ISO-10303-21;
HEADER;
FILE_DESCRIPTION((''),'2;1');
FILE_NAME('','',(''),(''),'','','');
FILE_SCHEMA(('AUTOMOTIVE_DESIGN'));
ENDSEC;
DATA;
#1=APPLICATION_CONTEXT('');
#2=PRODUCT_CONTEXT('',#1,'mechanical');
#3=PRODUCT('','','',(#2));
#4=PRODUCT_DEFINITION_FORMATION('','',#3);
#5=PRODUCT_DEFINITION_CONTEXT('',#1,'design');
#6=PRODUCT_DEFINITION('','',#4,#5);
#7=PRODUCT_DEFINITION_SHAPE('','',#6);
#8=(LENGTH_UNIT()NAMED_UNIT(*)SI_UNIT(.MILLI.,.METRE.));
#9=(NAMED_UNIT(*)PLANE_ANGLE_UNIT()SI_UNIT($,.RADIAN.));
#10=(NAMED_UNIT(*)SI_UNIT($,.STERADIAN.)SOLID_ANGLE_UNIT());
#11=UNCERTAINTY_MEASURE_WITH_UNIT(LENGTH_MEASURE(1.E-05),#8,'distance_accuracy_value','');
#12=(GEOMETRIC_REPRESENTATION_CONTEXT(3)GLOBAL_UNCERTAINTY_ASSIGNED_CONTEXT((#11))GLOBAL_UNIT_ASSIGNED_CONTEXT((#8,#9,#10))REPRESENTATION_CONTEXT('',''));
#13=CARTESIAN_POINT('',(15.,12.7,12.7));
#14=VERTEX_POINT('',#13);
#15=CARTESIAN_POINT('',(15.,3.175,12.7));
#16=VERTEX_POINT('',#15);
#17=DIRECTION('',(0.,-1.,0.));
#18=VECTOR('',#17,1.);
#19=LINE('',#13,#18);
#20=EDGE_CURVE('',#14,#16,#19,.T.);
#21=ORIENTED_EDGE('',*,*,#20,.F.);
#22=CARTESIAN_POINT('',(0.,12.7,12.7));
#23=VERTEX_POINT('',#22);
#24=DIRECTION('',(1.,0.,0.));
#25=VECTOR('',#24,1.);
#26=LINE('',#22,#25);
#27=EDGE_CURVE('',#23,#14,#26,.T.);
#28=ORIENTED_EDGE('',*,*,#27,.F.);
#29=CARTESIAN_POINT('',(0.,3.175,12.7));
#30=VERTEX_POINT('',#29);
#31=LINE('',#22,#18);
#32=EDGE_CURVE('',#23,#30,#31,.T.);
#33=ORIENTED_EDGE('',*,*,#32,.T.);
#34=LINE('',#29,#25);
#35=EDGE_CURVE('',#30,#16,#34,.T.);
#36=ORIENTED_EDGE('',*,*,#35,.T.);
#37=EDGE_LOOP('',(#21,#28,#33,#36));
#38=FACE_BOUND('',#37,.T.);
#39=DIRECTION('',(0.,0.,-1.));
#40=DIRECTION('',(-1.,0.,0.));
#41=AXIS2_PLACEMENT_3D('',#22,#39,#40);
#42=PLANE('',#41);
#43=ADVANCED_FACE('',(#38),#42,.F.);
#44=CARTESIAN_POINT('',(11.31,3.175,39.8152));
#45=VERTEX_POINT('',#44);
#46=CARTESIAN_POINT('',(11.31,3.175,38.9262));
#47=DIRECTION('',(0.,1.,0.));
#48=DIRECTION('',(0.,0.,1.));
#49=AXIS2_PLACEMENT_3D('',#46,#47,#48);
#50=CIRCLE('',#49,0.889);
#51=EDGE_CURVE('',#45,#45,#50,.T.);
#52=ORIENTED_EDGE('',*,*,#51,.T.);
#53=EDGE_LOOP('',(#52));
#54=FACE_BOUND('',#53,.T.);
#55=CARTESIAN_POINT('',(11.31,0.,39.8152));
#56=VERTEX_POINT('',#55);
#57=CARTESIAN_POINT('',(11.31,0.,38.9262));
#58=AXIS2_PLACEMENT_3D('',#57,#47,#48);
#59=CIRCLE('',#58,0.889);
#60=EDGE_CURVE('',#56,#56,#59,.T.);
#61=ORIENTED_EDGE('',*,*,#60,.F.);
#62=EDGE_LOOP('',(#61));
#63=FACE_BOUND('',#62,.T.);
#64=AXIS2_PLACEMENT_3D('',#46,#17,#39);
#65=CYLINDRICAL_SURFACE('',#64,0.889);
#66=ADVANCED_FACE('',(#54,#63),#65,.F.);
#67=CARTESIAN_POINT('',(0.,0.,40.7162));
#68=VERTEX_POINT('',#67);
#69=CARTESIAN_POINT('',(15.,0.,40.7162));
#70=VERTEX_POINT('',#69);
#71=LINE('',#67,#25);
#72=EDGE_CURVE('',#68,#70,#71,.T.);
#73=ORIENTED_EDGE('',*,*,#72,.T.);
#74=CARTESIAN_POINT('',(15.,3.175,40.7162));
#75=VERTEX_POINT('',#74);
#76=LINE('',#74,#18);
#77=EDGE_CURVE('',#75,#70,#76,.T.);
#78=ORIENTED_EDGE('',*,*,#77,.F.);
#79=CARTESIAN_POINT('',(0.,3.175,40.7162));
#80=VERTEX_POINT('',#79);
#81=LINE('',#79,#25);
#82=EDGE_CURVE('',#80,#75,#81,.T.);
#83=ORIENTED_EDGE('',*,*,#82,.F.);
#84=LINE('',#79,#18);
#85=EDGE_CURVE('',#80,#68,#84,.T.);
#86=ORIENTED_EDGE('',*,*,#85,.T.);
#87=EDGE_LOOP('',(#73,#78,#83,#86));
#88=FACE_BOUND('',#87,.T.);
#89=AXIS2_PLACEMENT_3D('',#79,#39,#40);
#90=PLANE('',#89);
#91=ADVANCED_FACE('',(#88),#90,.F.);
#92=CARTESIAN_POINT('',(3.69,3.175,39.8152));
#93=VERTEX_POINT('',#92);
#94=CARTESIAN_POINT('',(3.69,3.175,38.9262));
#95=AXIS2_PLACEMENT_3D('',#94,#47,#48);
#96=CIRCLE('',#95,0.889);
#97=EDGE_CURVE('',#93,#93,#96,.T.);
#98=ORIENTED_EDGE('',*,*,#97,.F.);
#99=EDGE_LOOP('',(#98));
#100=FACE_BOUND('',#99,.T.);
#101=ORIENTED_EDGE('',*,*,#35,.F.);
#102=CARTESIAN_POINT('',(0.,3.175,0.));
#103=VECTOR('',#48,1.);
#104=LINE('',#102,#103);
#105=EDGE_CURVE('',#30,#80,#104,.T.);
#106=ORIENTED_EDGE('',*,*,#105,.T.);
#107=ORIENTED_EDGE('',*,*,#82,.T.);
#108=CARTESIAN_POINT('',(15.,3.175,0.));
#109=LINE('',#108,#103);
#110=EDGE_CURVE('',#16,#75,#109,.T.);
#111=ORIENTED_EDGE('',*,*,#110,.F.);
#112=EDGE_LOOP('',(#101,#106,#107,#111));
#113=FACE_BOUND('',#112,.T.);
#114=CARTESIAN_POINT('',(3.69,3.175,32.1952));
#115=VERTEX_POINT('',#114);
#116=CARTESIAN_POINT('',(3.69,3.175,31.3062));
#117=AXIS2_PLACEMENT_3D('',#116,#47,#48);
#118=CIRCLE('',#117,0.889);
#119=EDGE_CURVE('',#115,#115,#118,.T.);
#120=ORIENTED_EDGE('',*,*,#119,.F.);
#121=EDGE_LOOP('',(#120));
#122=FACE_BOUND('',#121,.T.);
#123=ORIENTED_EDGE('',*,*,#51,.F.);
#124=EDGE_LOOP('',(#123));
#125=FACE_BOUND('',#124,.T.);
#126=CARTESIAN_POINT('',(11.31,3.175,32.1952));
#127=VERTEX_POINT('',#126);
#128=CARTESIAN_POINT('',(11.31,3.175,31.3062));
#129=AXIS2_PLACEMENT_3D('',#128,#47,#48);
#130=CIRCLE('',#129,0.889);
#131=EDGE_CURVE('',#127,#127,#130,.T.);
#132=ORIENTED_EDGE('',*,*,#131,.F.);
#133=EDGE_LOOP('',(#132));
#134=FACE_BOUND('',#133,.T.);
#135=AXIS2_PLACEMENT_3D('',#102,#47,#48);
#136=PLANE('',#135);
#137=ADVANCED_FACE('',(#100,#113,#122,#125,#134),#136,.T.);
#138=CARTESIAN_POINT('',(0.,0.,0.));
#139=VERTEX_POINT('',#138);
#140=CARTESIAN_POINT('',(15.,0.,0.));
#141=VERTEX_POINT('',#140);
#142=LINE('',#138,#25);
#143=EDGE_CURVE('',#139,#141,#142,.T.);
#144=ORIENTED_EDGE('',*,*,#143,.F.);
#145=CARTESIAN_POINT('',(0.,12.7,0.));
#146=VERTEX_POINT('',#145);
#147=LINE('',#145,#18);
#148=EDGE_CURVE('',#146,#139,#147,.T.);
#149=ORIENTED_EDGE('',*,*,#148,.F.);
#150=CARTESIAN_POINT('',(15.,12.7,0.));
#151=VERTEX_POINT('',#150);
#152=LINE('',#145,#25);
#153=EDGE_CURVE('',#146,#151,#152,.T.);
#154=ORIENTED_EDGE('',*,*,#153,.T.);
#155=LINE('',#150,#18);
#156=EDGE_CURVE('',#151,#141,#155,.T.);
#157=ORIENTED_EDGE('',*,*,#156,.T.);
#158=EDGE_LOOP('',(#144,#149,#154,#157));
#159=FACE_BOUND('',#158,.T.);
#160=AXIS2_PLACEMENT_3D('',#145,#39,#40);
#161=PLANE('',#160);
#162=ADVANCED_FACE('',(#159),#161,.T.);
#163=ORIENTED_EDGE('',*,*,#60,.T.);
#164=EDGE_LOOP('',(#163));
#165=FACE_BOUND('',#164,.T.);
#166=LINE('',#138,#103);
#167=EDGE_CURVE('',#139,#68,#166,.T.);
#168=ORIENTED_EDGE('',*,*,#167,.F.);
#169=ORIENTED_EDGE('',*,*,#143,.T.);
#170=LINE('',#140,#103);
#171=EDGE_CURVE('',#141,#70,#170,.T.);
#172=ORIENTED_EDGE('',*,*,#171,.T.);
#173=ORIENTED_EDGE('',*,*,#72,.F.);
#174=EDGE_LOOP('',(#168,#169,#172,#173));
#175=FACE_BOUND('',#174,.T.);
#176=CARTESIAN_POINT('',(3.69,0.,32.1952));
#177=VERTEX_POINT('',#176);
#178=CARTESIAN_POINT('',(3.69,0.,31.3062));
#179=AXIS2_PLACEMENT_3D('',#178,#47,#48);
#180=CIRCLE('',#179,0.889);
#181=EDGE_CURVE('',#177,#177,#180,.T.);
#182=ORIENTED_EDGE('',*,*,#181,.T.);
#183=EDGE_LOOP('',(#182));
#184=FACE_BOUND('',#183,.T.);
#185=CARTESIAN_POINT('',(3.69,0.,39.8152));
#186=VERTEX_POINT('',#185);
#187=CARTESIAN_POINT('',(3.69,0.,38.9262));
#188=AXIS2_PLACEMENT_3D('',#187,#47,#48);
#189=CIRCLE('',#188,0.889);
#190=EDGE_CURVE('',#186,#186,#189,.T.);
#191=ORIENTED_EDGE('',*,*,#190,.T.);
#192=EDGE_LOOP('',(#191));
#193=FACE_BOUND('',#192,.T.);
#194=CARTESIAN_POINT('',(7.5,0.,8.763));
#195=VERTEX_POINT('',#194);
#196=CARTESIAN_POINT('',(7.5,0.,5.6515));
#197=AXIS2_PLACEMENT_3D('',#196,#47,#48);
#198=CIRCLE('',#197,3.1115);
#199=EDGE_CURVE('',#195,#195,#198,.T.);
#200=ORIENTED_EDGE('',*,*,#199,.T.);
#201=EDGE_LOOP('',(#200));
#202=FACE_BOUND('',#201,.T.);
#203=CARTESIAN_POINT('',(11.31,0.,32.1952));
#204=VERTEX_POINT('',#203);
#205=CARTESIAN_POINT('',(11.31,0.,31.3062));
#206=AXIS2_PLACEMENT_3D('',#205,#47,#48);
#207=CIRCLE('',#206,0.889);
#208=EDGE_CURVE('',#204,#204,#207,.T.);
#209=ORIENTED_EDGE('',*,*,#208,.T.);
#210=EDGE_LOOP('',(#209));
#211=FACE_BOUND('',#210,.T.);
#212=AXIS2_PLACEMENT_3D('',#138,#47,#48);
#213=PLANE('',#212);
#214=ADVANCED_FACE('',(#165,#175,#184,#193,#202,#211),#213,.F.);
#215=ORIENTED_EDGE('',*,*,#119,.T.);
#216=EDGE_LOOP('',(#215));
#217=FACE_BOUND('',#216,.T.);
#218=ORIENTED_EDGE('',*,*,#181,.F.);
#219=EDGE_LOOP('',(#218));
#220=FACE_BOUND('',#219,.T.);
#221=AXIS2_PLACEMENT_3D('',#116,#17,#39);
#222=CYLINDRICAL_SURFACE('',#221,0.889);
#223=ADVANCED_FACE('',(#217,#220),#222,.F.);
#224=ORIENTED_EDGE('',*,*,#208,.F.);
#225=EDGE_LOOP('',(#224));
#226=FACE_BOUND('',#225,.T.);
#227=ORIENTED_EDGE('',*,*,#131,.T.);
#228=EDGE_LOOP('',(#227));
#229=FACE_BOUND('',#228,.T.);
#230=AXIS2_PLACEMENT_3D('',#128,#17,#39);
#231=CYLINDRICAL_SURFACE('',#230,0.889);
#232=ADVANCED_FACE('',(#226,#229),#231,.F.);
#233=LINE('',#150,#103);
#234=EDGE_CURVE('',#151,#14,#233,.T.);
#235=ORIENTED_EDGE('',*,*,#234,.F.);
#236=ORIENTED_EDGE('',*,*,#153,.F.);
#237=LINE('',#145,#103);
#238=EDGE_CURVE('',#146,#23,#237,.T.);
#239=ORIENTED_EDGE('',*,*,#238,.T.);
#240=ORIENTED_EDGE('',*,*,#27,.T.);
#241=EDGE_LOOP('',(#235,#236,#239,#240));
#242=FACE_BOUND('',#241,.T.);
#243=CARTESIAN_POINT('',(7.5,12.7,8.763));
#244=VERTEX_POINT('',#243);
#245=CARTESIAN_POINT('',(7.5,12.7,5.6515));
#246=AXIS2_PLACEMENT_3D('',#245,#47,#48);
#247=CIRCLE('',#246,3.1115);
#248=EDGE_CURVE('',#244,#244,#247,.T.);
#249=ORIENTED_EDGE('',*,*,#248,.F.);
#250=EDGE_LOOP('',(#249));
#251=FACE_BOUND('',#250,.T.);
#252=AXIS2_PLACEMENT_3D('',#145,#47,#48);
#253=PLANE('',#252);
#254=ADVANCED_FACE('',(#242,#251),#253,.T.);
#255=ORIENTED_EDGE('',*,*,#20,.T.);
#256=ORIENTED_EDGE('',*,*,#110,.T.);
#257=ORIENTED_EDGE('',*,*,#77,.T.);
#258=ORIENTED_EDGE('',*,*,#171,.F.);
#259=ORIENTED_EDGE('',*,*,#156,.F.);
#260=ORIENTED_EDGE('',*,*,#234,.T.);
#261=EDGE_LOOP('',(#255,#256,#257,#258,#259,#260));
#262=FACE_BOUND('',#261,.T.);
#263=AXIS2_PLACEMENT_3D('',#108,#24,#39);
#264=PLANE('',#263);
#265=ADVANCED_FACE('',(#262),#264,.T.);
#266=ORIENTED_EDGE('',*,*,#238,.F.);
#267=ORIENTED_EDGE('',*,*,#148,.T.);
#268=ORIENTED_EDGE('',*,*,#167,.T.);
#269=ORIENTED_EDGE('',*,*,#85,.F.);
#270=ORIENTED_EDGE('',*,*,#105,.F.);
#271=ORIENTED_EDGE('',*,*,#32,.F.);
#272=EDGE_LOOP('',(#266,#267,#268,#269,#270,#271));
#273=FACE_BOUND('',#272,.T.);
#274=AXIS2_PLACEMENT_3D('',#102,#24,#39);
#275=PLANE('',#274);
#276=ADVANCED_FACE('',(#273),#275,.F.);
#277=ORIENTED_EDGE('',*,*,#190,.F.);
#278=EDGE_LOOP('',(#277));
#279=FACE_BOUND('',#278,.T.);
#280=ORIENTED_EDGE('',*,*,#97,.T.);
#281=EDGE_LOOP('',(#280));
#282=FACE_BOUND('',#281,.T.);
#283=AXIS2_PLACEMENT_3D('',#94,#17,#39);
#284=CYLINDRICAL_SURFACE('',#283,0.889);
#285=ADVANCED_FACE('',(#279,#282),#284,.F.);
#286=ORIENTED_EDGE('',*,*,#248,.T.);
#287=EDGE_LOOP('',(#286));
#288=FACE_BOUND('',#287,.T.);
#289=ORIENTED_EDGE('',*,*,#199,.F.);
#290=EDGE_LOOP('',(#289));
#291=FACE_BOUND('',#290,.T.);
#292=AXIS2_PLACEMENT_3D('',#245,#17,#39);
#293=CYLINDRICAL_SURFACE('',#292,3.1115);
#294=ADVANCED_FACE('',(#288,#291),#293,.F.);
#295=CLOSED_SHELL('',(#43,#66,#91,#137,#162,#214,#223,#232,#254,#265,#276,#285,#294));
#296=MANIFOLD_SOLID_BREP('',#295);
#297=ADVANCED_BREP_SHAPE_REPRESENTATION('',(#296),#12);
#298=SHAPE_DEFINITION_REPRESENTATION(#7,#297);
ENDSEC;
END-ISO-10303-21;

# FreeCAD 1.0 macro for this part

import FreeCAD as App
import Part
import Sketcher

V = App.Vector
Q = App.Units.Quantity

doc = App.newDocument("Part")
params = doc.addObject("Spreadsheet::Sheet", "Params")
for row, (alias, value) in enumerate([
    ("sketch1_diameter", "0.07 in"),
    ("sketch1_height", "1.103 in"),
    ("pad1_length", "0.125 in"),
    ("sketch2_diameter", "0.245 in"),
    ("sketch2_height", "0.5 in"),
    ("pad2_length", "0.5 in"),
], start=1):
    params.set(f"A{row}", alias)
    params.set(f"B{row}", "=" + value)
    params.setAlias(f"B{row}", alias)

body = doc.addObject("PartDesign::Body", "Body")

# Sketch on XZ plane
sketch1 = body.newObject("Sketcher::SketchObject", "Sketch")
sketch1.AttachmentSupport = (doc.getObject("XZ_Plane"), [""])
sketch1.MapMode = "FlatFace"
sketch1.addGeometry(Part.LineSegment(V(0, 12.7, 0), V(0, 40.7, 0)), False)
sketch1.addGeometry(Part.LineSegment(V(0, 40.7, 0), V(15, 40.7, 0)), False)
sketch1.addGeometry(Part.LineSegment(V(15, 40.7, 0), V(15, 12.7, 0)), False)
sketch1.addGeometry(Part.LineSegment(V(15, 12.7, 0), V(0, 12.7, 0)), False)
sketch1.addGeometry(Part.Circle(V(3.7, 38.9, 0), V(0, 0, 1), 0.9), False)
sketch1.addGeometry(Part.Circle(V(11.3, 38.9, 0), V(0, 0, 1), 0.9), False)
sketch1.addGeometry(Part.Circle(V(3.7, 31.3, 0), V(0, 0, 1), 0.9), False)
sketch1.addGeometry(Part.Circle(V(11.3, 31.3, 0), V(0, 0, 1), 0.9), False)
sketch1.addConstraint(Sketcher.Constraint("Coincident", 0, 2, 1, 1))
sketch1.addConstraint(Sketcher.Constraint("Coincident", 1, 2, 2, 1))
sketch1.addConstraint(Sketcher.Constraint("Coincident", 2, 2, 3, 1))
sketch1.addConstraint(Sketcher.Constraint("Coincident", 3, 2, 0, 1))
sketch1.addConstraint(Sketcher.Constraint("Vertical", 0))
sketch1.addConstraint(Sketcher.Constraint("Horizontal", 1))
sketch1.addConstraint(Sketcher.Constraint("Vertical", 2))
sketch1.addConstraint(Sketcher.Constraint("Horizontal", 3))
sketch1.addConstraint(Sketcher.Constraint("Equal", 4, 5))
sketch1.addConstraint(Sketcher.Constraint("Equal", 5, 6))
sketch1.addConstraint(Sketcher.Constraint("Equal", 6, 7))
sketch1.addConstraint(Sketcher.Constraint("PointOnObject", 0, 2, -2))
sketch1.addConstraint(Sketcher.Constraint("Horizontal", 4, 3, 5, 3))
sketch1.addConstraint(Sketcher.Constraint("Horizontal", 6, 3, 7, 3))
sketch1.addConstraint(Sketcher.Constraint("Vertical", 4, 3, 6, 3))
sketch1.addConstraint(Sketcher.Constraint("Vertical", 5, 3, 7, 3))
sketch1.addConstraint(Sketcher.Constraint("Diameter", 4, Q("0.07 in")))
sketch1.addConstraint(Sketcher.Constraint("DistanceY", -1, 1, 2, 2, Q("0.5 in")))
sketch1.addConstraint(Sketcher.Constraint("DistanceX", 4, 3, 5, 3, Q("0.3 in")))
sketch1.addConstraint(Sketcher.Constraint("DistanceY", 6, 3, 4, 3, Q("0.3 in")))
sketch1.addConstraint(Sketcher.Constraint("DistanceY", 0, 1, 0, 2, Q("1.103 in")))
sketch1.addConstraint(Sketcher.Constraint("DistanceX", 1, 1, 1, 2, Q("15 mm")))
sketch1.addConstraint(Sketcher.Constraint("DistanceX", -1, 1, 4, 3, Q("3.69 mm")))
sketch1.addConstraint(Sketcher.Constraint("DistanceY", -1, 1, 4, 3, Q("38.9262 mm")))
sketch1.setExpression("Constraints[16]", "Params.sketch1_diameter")
sketch1.setExpression("Constraints[20]", "Params.sketch1_height")
pad1 = body.newObject("PartDesign::Pad", "Pad")
pad1.Profile = sketch1
pad1.setExpression("Length", "Params.pad1_length")
pad1.Reversed = True

# Sketch on XZ plane
sketch2 = body.newObject("Sketcher::SketchObject", "Sketch001")
sketch2.AttachmentSupport = (doc.getObject("XZ_Plane"), [""])
sketch2.MapMode = "FlatFace"
sketch2.addGeometry(Part.LineSegment(V(0, 0, 0), V(0, 12.7, 0)), False)
sketch2.addGeometry(Part.LineSegment(V(0, 12.7, 0), V(15, 12.7, 0)), False)
sketch2.addGeometry(Part.LineSegment(V(15, 12.7, 0), V(15, 0, 0)), False)
sketch2.addGeometry(Part.LineSegment(V(15, 0, 0), V(0, 0, 0)), False)
sketch2.addGeometry(Part.Circle(V(7.5, 5.7, 0), V(0, 0, 1), 3.1), False)
sketch2.addConstraint(Sketcher.Constraint("Coincident", 0, 2, 1, 1))
sketch2.addConstraint(Sketcher.Constraint("Coincident", 1, 2, 2, 1))
sketch2.addConstraint(Sketcher.Constraint("Coincident", 2, 2, 3, 1))
sketch2.addConstraint(Sketcher.Constraint("Coincident", 3, 2, 0, 1))
sketch2.addConstraint(Sketcher.Constraint("Vertical", 0))
sketch2.addConstraint(Sketcher.Constraint("Horizontal", 1))
sketch2.addConstraint(Sketcher.Constraint("Vertical", 2))
sketch2.addConstraint(Sketcher.Constraint("Horizontal", 3))
sketch2.addConstraint(Sketcher.Constraint("Coincident", 3, 2, -1, 1))
sketch2.addConstraint(Sketcher.Constraint("Diameter", 4, Q("0.245 in")))
sketch2.addConstraint(Sketcher.Constraint("DistanceY", 0, 1, 0, 2, Q("0.5 in")))
sketch2.addConstraint(Sketcher.Constraint("DistanceX", 1, 1, 1, 2, Q("15 mm")))
sketch2.addConstraint(Sketcher.Constraint("DistanceY", -1, 1, 4, 3, Q("0.2225 in")))
sketch2.addConstraint(Sketcher.Constraint("DistanceX", -1, 1, 4, 3, Q("7.5 mm")))
sketch2.setExpression("Constraints[9]", "Params.sketch2_diameter")
sketch2.setExpression("Constraints[10]", "Params.sketch2_height")
pad2 = body.newObject("PartDesign::Pad", "Pad001")
pad2.Profile = sketch2
pad2.setExpression("Length", "Params.pad2_length")
pad2.Reversed = True

doc.recompute()
